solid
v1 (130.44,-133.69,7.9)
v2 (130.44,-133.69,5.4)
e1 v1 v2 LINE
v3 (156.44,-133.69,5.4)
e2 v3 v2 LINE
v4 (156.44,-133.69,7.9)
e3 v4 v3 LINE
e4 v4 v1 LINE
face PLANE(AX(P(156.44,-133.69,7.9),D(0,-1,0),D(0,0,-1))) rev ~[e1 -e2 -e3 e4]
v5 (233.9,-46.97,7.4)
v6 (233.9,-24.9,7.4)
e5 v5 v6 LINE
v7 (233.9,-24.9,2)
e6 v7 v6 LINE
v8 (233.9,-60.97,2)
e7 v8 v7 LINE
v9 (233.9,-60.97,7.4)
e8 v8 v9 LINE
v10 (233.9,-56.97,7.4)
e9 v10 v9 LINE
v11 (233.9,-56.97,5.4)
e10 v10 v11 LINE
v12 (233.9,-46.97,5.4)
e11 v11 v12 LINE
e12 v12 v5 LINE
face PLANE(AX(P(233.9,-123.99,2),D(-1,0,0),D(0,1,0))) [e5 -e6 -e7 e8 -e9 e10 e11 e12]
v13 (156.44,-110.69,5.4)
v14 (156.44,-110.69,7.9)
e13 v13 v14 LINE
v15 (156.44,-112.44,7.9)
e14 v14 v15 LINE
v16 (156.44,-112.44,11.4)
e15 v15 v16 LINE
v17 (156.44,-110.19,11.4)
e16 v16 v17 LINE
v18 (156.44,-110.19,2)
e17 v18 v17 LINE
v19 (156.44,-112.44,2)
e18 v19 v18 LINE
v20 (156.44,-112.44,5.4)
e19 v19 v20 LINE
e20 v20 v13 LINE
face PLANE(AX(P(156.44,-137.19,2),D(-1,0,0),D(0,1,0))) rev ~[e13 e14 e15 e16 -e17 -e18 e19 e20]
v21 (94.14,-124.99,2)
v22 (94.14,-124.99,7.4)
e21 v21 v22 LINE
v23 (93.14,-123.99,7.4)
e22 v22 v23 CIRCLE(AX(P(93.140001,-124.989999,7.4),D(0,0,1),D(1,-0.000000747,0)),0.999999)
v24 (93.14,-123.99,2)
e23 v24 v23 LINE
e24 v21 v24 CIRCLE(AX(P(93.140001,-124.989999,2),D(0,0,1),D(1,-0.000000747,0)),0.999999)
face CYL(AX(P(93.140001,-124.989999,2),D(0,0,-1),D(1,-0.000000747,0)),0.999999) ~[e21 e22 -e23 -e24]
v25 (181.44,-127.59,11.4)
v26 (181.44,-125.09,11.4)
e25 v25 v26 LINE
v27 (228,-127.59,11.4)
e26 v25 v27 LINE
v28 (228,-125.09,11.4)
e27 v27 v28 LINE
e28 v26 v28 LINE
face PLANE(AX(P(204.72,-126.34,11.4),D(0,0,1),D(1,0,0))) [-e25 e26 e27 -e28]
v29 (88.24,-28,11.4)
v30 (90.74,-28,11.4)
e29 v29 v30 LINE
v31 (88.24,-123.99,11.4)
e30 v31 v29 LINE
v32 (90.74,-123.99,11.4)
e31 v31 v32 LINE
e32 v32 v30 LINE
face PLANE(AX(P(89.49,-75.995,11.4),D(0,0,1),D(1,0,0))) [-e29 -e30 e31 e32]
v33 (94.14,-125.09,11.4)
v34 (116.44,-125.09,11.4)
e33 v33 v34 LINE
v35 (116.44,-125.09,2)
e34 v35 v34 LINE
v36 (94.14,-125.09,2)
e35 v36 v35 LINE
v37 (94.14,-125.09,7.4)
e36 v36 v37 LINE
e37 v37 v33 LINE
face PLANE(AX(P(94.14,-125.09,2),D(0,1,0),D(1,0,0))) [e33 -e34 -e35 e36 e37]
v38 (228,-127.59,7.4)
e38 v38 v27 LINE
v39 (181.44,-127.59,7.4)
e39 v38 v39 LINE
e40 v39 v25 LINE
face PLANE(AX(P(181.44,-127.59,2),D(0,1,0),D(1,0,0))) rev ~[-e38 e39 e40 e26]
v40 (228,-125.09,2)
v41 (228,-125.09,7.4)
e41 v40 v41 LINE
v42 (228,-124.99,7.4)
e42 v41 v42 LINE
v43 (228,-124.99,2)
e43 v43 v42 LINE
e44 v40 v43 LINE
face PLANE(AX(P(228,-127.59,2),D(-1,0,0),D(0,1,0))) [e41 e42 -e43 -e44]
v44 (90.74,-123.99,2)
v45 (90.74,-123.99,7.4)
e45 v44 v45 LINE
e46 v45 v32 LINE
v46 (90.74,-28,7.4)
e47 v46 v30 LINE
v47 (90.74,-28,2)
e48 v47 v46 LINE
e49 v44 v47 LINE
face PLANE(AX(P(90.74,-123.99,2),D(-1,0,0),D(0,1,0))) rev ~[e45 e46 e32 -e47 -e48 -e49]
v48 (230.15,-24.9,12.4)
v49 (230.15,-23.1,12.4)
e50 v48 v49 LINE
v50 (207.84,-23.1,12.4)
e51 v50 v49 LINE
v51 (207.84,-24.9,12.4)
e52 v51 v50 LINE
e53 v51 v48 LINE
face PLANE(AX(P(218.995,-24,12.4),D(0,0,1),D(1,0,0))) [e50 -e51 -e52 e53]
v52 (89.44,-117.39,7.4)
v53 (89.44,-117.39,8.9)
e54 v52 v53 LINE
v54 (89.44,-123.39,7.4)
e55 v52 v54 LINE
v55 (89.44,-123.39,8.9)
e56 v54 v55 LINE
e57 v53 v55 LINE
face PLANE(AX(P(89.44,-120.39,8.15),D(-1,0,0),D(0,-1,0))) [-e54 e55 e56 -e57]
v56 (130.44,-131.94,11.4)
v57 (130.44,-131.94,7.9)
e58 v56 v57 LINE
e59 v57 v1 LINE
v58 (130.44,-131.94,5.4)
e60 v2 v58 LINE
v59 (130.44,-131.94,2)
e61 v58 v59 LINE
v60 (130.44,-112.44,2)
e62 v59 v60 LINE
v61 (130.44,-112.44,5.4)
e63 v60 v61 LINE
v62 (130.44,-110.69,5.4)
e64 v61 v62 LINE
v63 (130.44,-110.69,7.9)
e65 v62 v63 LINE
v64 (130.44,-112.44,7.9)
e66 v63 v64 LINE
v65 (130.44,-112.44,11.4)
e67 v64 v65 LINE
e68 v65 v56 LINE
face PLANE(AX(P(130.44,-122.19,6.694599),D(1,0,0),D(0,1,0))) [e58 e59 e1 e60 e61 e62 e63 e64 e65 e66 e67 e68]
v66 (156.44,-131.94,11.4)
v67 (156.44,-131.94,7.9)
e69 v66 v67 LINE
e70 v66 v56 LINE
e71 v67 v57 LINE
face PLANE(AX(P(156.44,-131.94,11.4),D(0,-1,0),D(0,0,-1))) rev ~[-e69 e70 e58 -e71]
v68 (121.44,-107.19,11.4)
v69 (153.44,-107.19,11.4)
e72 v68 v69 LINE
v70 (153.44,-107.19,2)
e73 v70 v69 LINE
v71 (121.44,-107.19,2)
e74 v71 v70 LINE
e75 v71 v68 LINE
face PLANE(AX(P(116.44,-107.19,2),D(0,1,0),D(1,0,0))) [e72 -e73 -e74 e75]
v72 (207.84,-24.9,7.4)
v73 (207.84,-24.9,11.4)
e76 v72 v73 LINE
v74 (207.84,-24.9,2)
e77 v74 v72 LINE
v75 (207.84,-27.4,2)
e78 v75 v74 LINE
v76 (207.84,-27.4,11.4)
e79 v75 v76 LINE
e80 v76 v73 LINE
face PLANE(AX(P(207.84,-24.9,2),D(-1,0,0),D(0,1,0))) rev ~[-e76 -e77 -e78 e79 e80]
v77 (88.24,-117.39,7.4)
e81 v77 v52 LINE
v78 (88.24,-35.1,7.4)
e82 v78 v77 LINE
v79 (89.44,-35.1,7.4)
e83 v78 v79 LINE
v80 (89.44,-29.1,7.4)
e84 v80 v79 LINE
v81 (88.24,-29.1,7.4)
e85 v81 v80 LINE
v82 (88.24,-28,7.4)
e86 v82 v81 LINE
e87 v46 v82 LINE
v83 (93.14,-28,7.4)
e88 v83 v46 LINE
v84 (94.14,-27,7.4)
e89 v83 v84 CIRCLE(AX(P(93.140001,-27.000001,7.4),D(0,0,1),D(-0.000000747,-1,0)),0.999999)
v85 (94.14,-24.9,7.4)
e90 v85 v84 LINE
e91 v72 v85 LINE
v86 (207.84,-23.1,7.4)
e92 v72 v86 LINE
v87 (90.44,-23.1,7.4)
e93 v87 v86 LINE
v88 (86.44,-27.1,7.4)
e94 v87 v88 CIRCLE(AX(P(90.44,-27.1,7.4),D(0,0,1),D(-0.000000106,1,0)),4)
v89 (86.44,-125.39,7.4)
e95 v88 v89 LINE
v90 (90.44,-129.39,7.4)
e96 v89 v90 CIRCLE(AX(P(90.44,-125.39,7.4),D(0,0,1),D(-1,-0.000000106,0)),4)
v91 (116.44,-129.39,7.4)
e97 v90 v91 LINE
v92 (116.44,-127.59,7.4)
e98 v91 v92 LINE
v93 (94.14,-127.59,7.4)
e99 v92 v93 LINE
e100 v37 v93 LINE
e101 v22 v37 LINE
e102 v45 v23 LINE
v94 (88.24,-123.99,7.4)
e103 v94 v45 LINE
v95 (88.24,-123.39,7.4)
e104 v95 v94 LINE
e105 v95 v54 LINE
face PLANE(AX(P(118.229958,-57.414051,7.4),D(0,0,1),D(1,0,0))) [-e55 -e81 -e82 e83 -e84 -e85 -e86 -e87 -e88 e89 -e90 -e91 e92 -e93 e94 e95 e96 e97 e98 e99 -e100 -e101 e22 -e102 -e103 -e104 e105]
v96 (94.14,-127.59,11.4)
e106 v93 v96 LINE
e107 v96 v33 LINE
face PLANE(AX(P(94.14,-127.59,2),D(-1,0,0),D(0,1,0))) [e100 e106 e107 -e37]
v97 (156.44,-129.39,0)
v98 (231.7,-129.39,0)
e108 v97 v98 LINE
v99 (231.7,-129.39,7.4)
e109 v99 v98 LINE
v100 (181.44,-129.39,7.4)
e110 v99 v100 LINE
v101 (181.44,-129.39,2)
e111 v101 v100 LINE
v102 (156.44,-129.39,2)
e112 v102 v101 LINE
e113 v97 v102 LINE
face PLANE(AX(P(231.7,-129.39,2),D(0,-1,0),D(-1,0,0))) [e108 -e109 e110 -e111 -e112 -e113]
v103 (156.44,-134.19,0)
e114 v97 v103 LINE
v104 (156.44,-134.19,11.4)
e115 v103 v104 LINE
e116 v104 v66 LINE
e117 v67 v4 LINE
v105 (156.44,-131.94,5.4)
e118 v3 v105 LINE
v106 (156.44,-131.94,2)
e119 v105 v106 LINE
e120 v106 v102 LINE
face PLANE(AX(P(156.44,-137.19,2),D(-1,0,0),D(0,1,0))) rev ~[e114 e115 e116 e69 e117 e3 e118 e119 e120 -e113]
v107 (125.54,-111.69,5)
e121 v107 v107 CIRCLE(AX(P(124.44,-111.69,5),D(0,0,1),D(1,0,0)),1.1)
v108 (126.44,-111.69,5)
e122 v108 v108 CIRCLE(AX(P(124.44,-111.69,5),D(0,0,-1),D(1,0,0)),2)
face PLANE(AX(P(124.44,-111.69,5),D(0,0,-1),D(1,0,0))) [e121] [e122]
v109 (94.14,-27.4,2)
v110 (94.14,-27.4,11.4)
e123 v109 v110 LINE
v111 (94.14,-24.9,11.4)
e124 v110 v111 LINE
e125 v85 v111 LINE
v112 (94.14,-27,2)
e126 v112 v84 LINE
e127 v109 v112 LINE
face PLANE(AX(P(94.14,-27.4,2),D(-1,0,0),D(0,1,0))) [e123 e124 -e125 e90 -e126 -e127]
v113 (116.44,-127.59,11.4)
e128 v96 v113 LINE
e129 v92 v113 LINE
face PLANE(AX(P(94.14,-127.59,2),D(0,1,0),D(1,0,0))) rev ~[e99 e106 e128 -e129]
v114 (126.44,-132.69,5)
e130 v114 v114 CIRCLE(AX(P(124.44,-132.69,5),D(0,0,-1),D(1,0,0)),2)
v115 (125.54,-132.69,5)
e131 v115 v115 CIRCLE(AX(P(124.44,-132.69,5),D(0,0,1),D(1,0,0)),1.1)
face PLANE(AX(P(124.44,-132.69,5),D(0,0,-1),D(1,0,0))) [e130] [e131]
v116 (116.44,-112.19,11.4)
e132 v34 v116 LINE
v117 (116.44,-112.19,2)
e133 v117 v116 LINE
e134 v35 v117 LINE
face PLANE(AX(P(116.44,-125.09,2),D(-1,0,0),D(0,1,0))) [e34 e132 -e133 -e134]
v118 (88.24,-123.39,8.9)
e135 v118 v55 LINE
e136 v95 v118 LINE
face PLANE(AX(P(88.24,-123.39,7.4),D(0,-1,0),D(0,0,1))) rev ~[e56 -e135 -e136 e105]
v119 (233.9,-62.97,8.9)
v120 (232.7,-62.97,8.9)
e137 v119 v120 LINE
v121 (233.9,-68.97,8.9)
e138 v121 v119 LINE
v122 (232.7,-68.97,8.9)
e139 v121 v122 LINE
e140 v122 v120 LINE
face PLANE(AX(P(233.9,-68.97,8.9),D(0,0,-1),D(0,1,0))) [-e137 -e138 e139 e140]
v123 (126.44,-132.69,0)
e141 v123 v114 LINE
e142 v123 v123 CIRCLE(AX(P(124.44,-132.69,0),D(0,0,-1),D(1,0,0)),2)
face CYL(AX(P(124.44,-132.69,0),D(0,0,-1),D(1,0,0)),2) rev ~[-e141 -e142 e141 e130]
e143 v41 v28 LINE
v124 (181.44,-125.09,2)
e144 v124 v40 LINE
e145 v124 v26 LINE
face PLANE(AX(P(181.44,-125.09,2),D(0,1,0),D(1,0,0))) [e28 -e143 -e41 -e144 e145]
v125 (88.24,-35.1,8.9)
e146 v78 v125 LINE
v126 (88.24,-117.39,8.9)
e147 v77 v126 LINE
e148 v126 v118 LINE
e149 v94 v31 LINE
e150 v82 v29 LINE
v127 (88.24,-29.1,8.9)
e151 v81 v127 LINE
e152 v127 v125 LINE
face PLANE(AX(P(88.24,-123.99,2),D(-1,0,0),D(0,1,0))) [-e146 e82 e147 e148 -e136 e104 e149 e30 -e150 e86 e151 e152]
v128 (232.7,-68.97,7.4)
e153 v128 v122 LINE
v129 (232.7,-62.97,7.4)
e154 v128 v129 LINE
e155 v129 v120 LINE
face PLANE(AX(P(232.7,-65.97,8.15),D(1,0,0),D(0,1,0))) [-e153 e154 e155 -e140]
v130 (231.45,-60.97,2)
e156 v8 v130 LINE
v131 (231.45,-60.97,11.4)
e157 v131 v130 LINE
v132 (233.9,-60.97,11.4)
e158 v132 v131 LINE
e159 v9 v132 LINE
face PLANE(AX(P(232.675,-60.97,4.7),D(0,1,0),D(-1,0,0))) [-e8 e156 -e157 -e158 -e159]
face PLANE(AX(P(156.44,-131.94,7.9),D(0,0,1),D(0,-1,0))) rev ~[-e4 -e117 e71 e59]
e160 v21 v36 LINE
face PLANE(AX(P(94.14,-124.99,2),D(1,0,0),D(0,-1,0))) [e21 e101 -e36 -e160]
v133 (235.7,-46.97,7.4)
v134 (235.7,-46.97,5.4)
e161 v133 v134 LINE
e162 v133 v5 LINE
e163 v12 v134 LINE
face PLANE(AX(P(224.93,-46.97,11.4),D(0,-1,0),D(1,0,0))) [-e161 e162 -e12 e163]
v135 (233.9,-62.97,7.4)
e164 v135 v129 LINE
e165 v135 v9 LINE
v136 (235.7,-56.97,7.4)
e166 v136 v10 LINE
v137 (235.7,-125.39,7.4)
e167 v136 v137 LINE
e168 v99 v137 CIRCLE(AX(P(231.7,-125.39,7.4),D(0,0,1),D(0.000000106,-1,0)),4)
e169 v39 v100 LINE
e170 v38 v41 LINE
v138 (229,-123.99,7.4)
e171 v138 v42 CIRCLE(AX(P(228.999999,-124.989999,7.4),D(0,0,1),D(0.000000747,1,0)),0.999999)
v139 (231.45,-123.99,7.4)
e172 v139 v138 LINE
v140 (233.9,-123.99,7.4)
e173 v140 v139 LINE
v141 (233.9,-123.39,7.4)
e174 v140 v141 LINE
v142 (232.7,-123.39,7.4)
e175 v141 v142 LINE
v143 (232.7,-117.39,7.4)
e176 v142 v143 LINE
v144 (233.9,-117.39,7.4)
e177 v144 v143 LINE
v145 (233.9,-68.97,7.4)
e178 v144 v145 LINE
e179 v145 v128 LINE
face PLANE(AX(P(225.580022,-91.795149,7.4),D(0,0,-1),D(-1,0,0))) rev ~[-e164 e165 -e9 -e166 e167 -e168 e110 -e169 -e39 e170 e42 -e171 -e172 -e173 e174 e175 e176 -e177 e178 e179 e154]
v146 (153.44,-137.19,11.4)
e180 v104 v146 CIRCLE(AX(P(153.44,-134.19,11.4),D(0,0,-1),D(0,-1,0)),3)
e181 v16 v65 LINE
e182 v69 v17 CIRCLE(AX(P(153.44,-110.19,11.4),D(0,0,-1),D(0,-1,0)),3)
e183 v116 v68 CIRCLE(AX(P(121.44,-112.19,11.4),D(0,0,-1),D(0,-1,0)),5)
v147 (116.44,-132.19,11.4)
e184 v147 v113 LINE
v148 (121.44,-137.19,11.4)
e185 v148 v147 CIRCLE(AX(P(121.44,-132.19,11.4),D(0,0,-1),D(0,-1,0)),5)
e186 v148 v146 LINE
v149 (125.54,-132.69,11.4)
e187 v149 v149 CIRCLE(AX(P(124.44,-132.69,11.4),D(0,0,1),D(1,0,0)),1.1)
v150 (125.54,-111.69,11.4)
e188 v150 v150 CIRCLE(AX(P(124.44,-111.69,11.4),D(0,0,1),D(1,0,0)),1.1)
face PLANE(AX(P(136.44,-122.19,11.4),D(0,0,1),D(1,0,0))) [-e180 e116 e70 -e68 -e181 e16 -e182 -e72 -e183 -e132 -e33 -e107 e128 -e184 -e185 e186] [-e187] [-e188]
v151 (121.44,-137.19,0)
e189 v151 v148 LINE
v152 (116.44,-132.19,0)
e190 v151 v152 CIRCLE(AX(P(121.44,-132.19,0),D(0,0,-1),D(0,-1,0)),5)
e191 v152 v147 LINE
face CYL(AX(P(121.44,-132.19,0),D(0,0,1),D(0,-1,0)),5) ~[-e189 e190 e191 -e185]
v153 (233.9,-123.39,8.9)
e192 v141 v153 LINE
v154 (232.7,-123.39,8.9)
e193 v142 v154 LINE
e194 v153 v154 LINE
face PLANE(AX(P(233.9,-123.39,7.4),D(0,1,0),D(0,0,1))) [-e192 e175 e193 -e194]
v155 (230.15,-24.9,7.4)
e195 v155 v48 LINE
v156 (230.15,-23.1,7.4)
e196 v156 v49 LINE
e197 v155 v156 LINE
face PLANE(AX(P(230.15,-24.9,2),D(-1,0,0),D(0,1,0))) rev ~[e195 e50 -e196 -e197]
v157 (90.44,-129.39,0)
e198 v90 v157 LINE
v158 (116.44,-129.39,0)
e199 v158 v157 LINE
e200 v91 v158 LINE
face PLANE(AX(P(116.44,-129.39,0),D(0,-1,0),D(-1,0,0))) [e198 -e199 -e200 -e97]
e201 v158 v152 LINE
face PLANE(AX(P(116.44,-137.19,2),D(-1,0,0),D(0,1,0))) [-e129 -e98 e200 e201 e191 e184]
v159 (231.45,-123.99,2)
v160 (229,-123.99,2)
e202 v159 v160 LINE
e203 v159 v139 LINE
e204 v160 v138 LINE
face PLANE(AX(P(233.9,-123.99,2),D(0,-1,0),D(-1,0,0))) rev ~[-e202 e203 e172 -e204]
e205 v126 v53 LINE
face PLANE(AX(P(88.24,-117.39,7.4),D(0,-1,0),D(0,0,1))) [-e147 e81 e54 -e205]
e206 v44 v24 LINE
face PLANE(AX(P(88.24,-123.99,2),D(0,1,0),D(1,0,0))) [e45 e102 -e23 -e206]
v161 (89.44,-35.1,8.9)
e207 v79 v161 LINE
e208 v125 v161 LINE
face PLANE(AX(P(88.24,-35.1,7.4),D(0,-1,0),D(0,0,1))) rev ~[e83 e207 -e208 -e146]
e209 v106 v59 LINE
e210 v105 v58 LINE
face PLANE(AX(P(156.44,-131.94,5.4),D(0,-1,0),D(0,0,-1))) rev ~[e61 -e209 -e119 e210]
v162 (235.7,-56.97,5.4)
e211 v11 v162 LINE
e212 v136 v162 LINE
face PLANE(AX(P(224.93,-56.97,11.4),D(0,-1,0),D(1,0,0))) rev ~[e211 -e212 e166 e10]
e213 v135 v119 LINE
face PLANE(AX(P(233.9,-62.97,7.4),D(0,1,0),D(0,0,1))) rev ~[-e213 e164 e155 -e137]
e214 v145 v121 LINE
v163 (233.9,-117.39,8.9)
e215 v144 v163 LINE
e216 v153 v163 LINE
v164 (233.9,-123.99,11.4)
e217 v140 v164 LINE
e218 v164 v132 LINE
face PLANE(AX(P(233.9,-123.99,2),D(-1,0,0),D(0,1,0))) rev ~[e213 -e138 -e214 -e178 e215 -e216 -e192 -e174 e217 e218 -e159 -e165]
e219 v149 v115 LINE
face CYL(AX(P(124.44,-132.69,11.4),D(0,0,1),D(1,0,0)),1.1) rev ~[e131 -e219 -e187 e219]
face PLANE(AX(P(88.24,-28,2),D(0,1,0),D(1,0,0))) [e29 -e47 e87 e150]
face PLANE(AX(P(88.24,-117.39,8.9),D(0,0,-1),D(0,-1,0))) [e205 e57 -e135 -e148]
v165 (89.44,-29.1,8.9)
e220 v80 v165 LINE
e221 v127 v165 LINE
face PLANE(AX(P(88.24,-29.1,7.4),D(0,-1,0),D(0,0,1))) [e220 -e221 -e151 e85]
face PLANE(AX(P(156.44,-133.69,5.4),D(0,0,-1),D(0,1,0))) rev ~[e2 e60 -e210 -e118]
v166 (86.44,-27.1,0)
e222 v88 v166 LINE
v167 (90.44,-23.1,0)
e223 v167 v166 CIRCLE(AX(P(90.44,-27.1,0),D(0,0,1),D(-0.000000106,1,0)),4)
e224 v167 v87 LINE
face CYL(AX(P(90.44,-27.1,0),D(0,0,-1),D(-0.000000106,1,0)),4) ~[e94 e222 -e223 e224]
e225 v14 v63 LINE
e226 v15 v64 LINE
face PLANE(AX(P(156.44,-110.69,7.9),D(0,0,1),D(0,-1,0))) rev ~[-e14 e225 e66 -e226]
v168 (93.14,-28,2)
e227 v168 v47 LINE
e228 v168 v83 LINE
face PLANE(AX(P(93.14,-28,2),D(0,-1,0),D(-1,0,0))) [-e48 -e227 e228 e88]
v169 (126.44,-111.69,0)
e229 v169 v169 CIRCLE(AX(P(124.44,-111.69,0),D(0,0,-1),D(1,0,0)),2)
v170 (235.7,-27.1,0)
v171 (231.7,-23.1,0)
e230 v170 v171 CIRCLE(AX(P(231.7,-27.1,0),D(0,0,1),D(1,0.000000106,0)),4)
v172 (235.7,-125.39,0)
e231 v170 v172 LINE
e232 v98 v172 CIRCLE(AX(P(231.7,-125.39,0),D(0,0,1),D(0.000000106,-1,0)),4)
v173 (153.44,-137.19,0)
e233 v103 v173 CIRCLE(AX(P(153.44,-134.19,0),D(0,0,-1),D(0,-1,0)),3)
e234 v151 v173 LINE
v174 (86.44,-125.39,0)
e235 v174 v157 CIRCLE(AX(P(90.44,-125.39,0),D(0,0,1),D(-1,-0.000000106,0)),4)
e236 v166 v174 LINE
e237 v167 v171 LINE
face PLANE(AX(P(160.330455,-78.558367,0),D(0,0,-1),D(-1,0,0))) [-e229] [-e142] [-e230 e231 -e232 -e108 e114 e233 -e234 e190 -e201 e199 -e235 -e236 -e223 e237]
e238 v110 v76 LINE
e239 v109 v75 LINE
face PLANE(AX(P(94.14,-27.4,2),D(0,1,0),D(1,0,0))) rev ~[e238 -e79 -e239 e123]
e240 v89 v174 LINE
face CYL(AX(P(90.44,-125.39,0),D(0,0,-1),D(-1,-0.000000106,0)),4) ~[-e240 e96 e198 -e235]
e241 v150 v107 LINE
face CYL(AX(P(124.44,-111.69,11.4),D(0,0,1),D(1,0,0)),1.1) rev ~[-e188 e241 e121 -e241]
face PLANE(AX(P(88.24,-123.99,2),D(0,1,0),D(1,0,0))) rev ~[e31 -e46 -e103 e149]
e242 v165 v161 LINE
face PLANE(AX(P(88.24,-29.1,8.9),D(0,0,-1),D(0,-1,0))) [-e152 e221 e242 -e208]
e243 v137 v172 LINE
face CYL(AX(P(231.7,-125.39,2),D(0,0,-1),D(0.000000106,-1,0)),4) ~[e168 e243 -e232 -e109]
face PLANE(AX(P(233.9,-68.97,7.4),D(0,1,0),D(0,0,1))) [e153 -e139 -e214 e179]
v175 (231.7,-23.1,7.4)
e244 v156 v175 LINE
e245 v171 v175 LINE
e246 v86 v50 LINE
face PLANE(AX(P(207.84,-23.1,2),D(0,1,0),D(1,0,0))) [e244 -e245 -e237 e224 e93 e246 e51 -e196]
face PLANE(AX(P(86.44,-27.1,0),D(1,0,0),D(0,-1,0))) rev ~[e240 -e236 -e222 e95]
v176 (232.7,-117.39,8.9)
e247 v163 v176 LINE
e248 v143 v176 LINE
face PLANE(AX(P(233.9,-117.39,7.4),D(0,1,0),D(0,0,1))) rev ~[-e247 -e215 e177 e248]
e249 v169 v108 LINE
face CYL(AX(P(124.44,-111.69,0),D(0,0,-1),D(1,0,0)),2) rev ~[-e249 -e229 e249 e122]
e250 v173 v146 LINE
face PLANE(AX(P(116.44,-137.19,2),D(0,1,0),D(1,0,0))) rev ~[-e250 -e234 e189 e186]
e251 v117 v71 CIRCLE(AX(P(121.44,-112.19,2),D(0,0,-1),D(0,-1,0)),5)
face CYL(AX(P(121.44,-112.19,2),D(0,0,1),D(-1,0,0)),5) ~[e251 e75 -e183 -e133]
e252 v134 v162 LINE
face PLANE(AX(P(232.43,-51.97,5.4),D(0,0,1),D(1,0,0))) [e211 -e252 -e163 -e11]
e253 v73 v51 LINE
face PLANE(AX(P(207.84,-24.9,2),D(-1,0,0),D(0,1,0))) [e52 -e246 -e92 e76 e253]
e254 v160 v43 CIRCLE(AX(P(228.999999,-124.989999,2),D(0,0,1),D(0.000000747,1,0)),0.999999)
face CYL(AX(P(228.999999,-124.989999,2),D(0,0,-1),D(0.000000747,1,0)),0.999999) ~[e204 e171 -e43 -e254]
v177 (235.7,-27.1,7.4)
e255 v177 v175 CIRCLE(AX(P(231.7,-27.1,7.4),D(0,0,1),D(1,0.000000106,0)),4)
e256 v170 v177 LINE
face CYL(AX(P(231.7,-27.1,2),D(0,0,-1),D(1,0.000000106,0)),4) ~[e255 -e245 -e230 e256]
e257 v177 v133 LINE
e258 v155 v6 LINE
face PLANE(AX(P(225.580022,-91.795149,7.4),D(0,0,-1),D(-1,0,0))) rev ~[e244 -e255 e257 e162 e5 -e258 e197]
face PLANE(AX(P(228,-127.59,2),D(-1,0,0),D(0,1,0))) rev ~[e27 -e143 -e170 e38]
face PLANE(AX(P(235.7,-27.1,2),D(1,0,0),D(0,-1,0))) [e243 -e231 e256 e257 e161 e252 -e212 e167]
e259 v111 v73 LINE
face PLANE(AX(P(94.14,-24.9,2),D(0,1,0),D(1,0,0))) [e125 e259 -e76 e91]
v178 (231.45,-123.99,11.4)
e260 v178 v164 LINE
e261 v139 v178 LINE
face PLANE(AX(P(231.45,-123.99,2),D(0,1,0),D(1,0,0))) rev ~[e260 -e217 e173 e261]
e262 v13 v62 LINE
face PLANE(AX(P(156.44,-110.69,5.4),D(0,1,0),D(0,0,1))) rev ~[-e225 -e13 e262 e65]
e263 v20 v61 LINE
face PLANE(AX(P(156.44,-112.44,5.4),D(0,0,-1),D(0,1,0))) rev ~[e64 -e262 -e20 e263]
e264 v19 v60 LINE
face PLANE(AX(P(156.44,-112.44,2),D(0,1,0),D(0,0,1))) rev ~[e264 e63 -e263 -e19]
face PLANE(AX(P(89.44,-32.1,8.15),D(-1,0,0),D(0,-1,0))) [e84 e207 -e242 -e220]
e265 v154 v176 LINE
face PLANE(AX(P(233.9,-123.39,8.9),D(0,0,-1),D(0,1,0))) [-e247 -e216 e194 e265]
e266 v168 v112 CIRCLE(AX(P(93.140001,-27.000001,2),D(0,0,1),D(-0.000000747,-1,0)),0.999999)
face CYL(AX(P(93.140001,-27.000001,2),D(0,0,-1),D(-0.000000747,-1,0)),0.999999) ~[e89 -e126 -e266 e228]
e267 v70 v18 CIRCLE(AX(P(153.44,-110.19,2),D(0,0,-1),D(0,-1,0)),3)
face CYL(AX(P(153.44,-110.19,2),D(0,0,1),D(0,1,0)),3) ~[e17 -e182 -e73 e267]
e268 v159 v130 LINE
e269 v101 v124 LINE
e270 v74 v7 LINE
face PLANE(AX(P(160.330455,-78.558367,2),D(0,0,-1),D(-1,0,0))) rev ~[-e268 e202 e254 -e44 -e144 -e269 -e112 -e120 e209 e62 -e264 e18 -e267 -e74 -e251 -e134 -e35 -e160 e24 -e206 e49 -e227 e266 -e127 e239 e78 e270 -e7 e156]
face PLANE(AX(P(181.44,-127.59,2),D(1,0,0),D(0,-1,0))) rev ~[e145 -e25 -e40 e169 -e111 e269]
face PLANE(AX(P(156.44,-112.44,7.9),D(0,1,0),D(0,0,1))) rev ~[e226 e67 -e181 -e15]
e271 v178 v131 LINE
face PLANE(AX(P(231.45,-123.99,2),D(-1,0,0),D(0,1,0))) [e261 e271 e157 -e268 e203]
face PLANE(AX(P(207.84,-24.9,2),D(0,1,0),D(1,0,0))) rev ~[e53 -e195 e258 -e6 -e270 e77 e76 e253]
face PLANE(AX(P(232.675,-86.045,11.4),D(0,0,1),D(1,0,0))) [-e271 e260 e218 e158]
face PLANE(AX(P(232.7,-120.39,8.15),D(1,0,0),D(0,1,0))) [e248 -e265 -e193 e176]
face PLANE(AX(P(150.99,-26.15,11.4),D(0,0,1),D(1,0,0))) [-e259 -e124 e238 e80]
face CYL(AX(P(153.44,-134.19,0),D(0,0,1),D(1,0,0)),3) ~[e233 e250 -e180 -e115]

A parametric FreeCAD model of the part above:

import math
import FreeCAD as App
import Part
import Sketcher
from FreeCAD import Vector


def edges_at(feature, points):
    """Names of the edges that pass closest to the given points."""
    edges = feature.Shape.Edges
    near = lambda p: min(range(len(edges)), key=lambda i: edges[i].distToShape(Part.Vertex(*p))[0])
    return sorted({f"Edge{near(p) + 1}" for p in points})


def add_polygon(sketch, points):
    """Adds a closed chain of lines whose ends are joined by coincident constraints."""
    first, n = sketch.GeometryCount, len(points)
    for a, b in zip(points, points[1:] + points[:1]):
        sketch.addGeometry(Part.LineSegment(App.Vector(*a, 0), App.Vector(*b, 0)), False)
    for i in range(n):
        sketch.addConstraint(Sketcher.Constraint("Coincident", first + i, 2, first + (i + 1) % n, 1))

doc = App.newDocument("Part")
body = doc.addObject("PartDesign::Body", "Body")

# Sketch on XY plane
sketch1 = body.newObject("Sketcher::SketchObject", "Sketch")
sketch1.AttachmentSupport = (doc.getObject("XY_Plane"), [""])
sketch1.MapMode = "FlatFace"
sketch1.addGeometry(Part.LineSegment(Vector(235.7, -125.4, 0), Vector(235.7, -27.1, 0)), False)
sketch1.addGeometry(Part.ArcOfCircle(Part.Circle(Vector(231.7, -27.1, 0), Vector(0, 0, 1), 4), math.radians(0), math.radians(90)), False)
sketch1.addGeometry(Part.LineSegment(Vector(231.7, -23.1, 0), Vector(90.4, -23.1, 0)), False)
sketch1.addGeometry(Part.ArcOfCircle(Part.Circle(Vector(90.4, -27.1, 0), Vector(0, 0, 1), 4), math.radians(90), math.radians(180)), False)
sketch1.addGeometry(Part.LineSegment(Vector(86.4, -27.1, 0), Vector(86.4, -125.4, 0)), False)
sketch1.addGeometry(Part.ArcOfCircle(Part.Circle(Vector(90.4, -125.4, 0), Vector(0, 0, 1), 4), math.radians(-180), math.radians(-90)), False)
sketch1.addGeometry(Part.LineSegment(Vector(90.4, -129.4, 0), Vector(116.4, -129.4, 0)), False)
sketch1.addGeometry(Part.LineSegment(Vector(116.4, -129.4, 0), Vector(116.4, -137.2, 0)), False)
sketch1.addGeometry(Part.LineSegment(Vector(116.4, -137.2, 0), Vector(156.4, -137.2, 0)), False)
sketch1.addGeometry(Part.LineSegment(Vector(156.4, -137.2, 0), Vector(156.4, -129.4, 0)), False)
sketch1.addGeometry(Part.LineSegment(Vector(156.4, -129.4, 0), Vector(231.7, -129.4, 0)), False)
sketch1.addGeometry(Part.ArcOfCircle(Part.Circle(Vector(231.7, -125.4, 0), Vector(0, 0, 1), 4), math.radians(-90), math.radians(0)), False)
sketch1.addConstraint(Sketcher.Constraint("Tangent", 0, 2, 1, 1))
sketch1.addConstraint(Sketcher.Constraint("Tangent", 1, 2, 2, 1))
sketch1.addConstraint(Sketcher.Constraint("Tangent", 2, 2, 3, 1))
sketch1.addConstraint(Sketcher.Constraint("Tangent", 3, 2, 4, 1))
sketch1.addConstraint(Sketcher.Constraint("Tangent", 4, 2, 5, 1))
sketch1.addConstraint(Sketcher.Constraint("Tangent", 5, 2, 6, 1))
sketch1.addConstraint(Sketcher.Constraint("Coincident", 6, 2, 7, 1))
sketch1.addConstraint(Sketcher.Constraint("Coincident", 7, 2, 8, 1))
sketch1.addConstraint(Sketcher.Constraint("Coincident", 8, 2, 9, 1))
sketch1.addConstraint(Sketcher.Constraint("Coincident", 9, 2, 10, 1))
sketch1.addConstraint(Sketcher.Constraint("Tangent", 10, 2, 11, 1))
sketch1.addConstraint(Sketcher.Constraint("Tangent", 11, 2, 0, 1))
sketch1.addConstraint(Sketcher.Constraint("Vertical", 0))
sketch1.addConstraint(Sketcher.Constraint("Horizontal", 2))
sketch1.addConstraint(Sketcher.Constraint("Vertical", 4))
sketch1.addConstraint(Sketcher.Constraint("Horizontal", 6))
sketch1.addConstraint(Sketcher.Constraint("Vertical", 7))
sketch1.addConstraint(Sketcher.Constraint("Horizontal", 8))
sketch1.addConstraint(Sketcher.Constraint("Vertical", 9))
sketch1.addConstraint(Sketcher.Constraint("Horizontal", 10))
sketch1.addConstraint(Sketcher.Constraint("Equal", 1, 3))
sketch1.addConstraint(Sketcher.Constraint("Equal", 3, 5))
sketch1.addConstraint(Sketcher.Constraint("Equal", 5, 11))
sketch1.addConstraint(Sketcher.Constraint("Horizontal", 5, 3, 11, 3))
sketch1.addConstraint(Sketcher.Constraint("Radius", 1, 4.0))
sketch1.addConstraint(Sketcher.Constraint("DistanceX", 6, 1, 6, 2, 26.0))
sketch1.addConstraint(Sketcher.Constraint("DistanceX", 8, 1, 8, 2, 40.0))
sketch1.addConstraint(Sketcher.Constraint("DistanceY", 7, 2, 7, 1, 7.8))
sketch1.addConstraint(Sketcher.Constraint("DistanceX", 2, 2, 2, 1, 141.26))
sketch1.addConstraint(Sketcher.Constraint("DistanceY", 0, 1, 0, 2, 98.29))
sketch1.addConstraint(Sketcher.Constraint("DistanceX", -1, 1, 1, 3, 231.7))
sketch1.addConstraint(Sketcher.Constraint("DistanceY", 1, 3, -1, 1, 27.1))
pad1 = body.newObject("PartDesign::Pad", "Pad")
pad1.Profile = sketch1
pad1.Length = 2

# Sketch on XY plane
sketch2 = body.newObject("Sketcher::SketchObject", "Sketch001")
sketch2.AttachmentSupport = (doc.getObject("XY_Plane"), [""])
sketch2.MapMode = "FlatFace"
sketch2.AttachmentOffset = App.Placement(Vector(0, 0, 2), App.Rotation())
sketch2.addGeometry(Part.LineSegment(Vector(235.7, -125.4, 0), Vector(235.7, -27.1, 0)), False)
sketch2.addGeometry(Part.ArcOfCircle(Part.Circle(Vector(231.7, -27.1, 0), Vector(0, 0, 1), 4), math.radians(0), math.radians(90)), False)
sketch2.addGeometry(Part.LineSegment(Vector(231.7, -23.1, 0), Vector(230.2, -23.1, 0)), False)
sketch2.addGeometry(Part.LineSegment(Vector(230.2, -23.1, 0), Vector(230.2, -24.9, 0)), False)
sketch2.addGeometry(Part.LineSegment(Vector(230.2, -24.9, 0), Vector(233.9, -24.9, 0)), False)
sketch2.addGeometry(Part.LineSegment(Vector(233.9, -24.9, 0), Vector(233.9, -124, 0)), False)
sketch2.addGeometry(Part.LineSegment(Vector(233.9, -124, 0), Vector(229, -124, 0)), False)
sketch2.addGeometry(Part.ArcOfCircle(Part.Circle(Vector(229, -125, 0), Vector(0, 0, 1), 1), math.radians(90), math.radians(180)), False)
sketch2.addGeometry(Part.LineSegment(Vector(228, -125, 0), Vector(228, -127.6, 0)), False)
sketch2.addGeometry(Part.LineSegment(Vector(228, -127.6, 0), Vector(181.4, -127.6, 0)), False)
sketch2.addGeometry(Part.LineSegment(Vector(181.4, -127.6, 0), Vector(181.4, -129.4, 0)), False)
sketch2.addGeometry(Part.LineSegment(Vector(181.4, -129.4, 0), Vector(231.7, -129.4, 0)), False)
sketch2.addGeometry(Part.ArcOfCircle(Part.Circle(Vector(231.7, -125.4, 0), Vector(0, 0, 1), 4), math.radians(-90), math.radians(0)), False)
sketch2.addGeometry(Part.LineSegment(Vector(86.4, -27.1, 0), Vector(86.4, -125.4, 0)), False)
sketch2.addGeometry(Part.ArcOfCircle(Part.Circle(Vector(90.4, -125.4, 0), Vector(0, 0, 1), 4), math.radians(-180), math.radians(-90)), False)
sketch2.addGeometry(Part.LineSegment(Vector(90.4, -129.4, 0), Vector(116.4, -129.4, 0)), False)
sketch2.addGeometry(Part.LineSegment(Vector(116.4, -129.4, 0), Vector(116.4, -127.6, 0)), False)
sketch2.addGeometry(Part.LineSegment(Vector(116.4, -127.6, 0), Vector(94.1, -127.6, 0)), False)
sketch2.addGeometry(Part.LineSegment(Vector(94.1, -127.6, 0), Vector(94.1, -125, 0)), False)
sketch2.addGeometry(Part.ArcOfCircle(Part.Circle(Vector(93.1, -125, 0), Vector(0, 0, 1), 1), math.radians(0), math.radians(90)), False)
sketch2.addGeometry(Part.LineSegment(Vector(93.1, -124, 0), Vector(88.2, -124, 0)), False)
sketch2.addGeometry(Part.LineSegment(Vector(88.2, -124, 0), Vector(88.2, -28, 0)), False)
sketch2.addGeometry(Part.LineSegment(Vector(88.2, -28, 0), Vector(93.1, -28, 0)), False)
sketch2.addGeometry(Part.ArcOfCircle(Part.Circle(Vector(93.1, -27, 0), Vector(0, 0, 1), 1), math.radians(-90), math.radians(0)), False)
sketch2.addGeometry(Part.LineSegment(Vector(94.1, -27, 0), Vector(94.1, -24.9, 0)), False)
sketch2.addGeometry(Part.LineSegment(Vector(94.1, -24.9, 0), Vector(207.8, -24.9, 0)), False)
sketch2.addGeometry(Part.LineSegment(Vector(207.8, -24.9, 0), Vector(207.8, -23.1, 0)), False)
sketch2.addGeometry(Part.LineSegment(Vector(207.8, -23.1, 0), Vector(90.4, -23.1, 0)), False)
sketch2.addGeometry(Part.ArcOfCircle(Part.Circle(Vector(90.4, -27.1, 0), Vector(0, 0, 1), 4), math.radians(90), math.radians(180)), False)
sketch2.addConstraint(Sketcher.Constraint("Tangent", 0, 2, 1, 1))
sketch2.addConstraint(Sketcher.Constraint("Tangent", 1, 2, 2, 1))
sketch2.addConstraint(Sketcher.Constraint("Coincident", 2, 2, 3, 1))
sketch2.addConstraint(Sketcher.Constraint("Coincident", 3, 2, 4, 1))
sketch2.addConstraint(Sketcher.Constraint("Coincident", 4, 2, 5, 1))
sketch2.addConstraint(Sketcher.Constraint("Coincident", 5, 2, 6, 1))
sketch2.addConstraint(Sketcher.Constraint("Tangent", 6, 2, 7, 1))
sketch2.addConstraint(Sketcher.Constraint("Tangent", 7, 2, 8, 1))
sketch2.addConstraint(Sketcher.Constraint("Coincident", 8, 2, 9, 1))
sketch2.addConstraint(Sketcher.Constraint("Coincident", 9, 2, 10, 1))
sketch2.addConstraint(Sketcher.Constraint("Coincident", 10, 2, 11, 1))
sketch2.addConstraint(Sketcher.Constraint("Tangent", 11, 2, 12, 1))
sketch2.addConstraint(Sketcher.Constraint("Tangent", 12, 2, 0, 1))
sketch2.addConstraint(Sketcher.Constraint("Tangent", 13, 2, 14, 1))
sketch2.addConstraint(Sketcher.Constraint("Tangent", 14, 2, 15, 1))
sketch2.addConstraint(Sketcher.Constraint("Coincident", 15, 2, 16, 1))
sketch2.addConstraint(Sketcher.Constraint("Coincident", 16, 2, 17, 1))
sketch2.addConstraint(Sketcher.Constraint("Coincident", 17, 2, 18, 1))
sketch2.addConstraint(Sketcher.Constraint("Tangent", 18, 2, 19, 1))
sketch2.addConstraint(Sketcher.Constraint("Tangent", 19, 2, 20, 1))
sketch2.addConstraint(Sketcher.Constraint("Coincident", 20, 2, 21, 1))
sketch2.addConstraint(Sketcher.Constraint("Coincident", 21, 2, 22, 1))
sketch2.addConstraint(Sketcher.Constraint("Tangent", 22, 2, 23, 1))
sketch2.addConstraint(Sketcher.Constraint("Tangent", 23, 2, 24, 1))
sketch2.addConstraint(Sketcher.Constraint("Coincident", 24, 2, 25, 1))
sketch2.addConstraint(Sketcher.Constraint("Coincident", 25, 2, 26, 1))
sketch2.addConstraint(Sketcher.Constraint("Coincident", 26, 2, 27, 1))
sketch2.addConstraint(Sketcher.Constraint("Tangent", 27, 2, 28, 1))
sketch2.addConstraint(Sketcher.Constraint("Tangent", 28, 2, 13, 1))
sketch2.addConstraint(Sketcher.Constraint("Vertical", 0))
sketch2.addConstraint(Sketcher.Constraint("Horizontal", 2))
sketch2.addConstraint(Sketcher.Constraint("Vertical", 3))
sketch2.addConstraint(Sketcher.Constraint("Horizontal", 4))
sketch2.addConstraint(Sketcher.Constraint("Vertical", 5))
sketch2.addConstraint(Sketcher.Constraint("Horizontal", 6))
sketch2.addConstraint(Sketcher.Constraint("Vertical", 8))
sketch2.addConstraint(Sketcher.Constraint("Horizontal", 9))
sketch2.addConstraint(Sketcher.Constraint("Vertical", 10))
sketch2.addConstraint(Sketcher.Constraint("Horizontal", 11))
sketch2.addConstraint(Sketcher.Constraint("Vertical", 13))
sketch2.addConstraint(Sketcher.Constraint("Horizontal", 15))
sketch2.addConstraint(Sketcher.Constraint("Vertical", 16))
sketch2.addConstraint(Sketcher.Constraint("Horizontal", 17))
sketch2.addConstraint(Sketcher.Constraint("Vertical", 18))
sketch2.addConstraint(Sketcher.Constraint("Horizontal", 20))
sketch2.addConstraint(Sketcher.Constraint("Vertical", 21))
sketch2.addConstraint(Sketcher.Constraint("Horizontal", 22))
sketch2.addConstraint(Sketcher.Constraint("Vertical", 24))
sketch2.addConstraint(Sketcher.Constraint("Horizontal", 25))
sketch2.addConstraint(Sketcher.Constraint("Vertical", 26))
sketch2.addConstraint(Sketcher.Constraint("Horizontal", 27))
sketch2.addConstraint(Sketcher.Constraint("Equal", 1, 12))
sketch2.addConstraint(Sketcher.Constraint("Equal", 12, 14))
sketch2.addConstraint(Sketcher.Constraint("Equal", 7, 19))
sketch2.addConstraint(Sketcher.Constraint("Equal", 19, 23))
sketch2.addConstraint(Sketcher.Constraint("Equal", 14, 28))
sketch2.addConstraint(Sketcher.Constraint("Horizontal", 12, 3, 14, 3))
sketch2.addConstraint(Sketcher.Constraint("Horizontal", 7, 3, 19, 3))
sketch2.addConstraint(Sketcher.Constraint("Horizontal", 1, 3, 28, 3))
sketch2.addConstraint(Sketcher.Constraint("Horizontal", 9, 2, 16, 2))
sketch2.addConstraint(Sketcher.Constraint("Horizontal", 4, 2, 24, 2))
sketch2.addConstraint(Sketcher.Constraint("Vertical", 19, 3, 23, 3))
sketch2.addConstraint(Sketcher.Constraint("Equal", 6, 20))
sketch2.addConstraint(Sketcher.Constraint("Equal", 3, 10))
sketch2.addConstraint(Sketcher.Constraint("Radius", 1, 4.0))
sketch2.addConstraint(Sketcher.Constraint("Radius", 7, 0.999999))
sketch2.addConstraint(Sketcher.Constraint("DistanceX", 15, 1, 15, 2, 26.0))
sketch2.addConstraint(Sketcher.Constraint("DistanceX", 6, 2, 6, 1, 4.9))
sketch2.addConstraint(Sketcher.Constraint("DistanceX", 17, 2, 17, 1, 22.3))
sketch2.addConstraint(Sketcher.Constraint("DistanceX", 25, 1, 25, 2, 113.7))
sketch2.addConstraint(Sketcher.Constraint("DistanceY", 3, 2, 3, 1, 1.8))
sketch2.addConstraint(Sketcher.Constraint("DistanceY", 8, 2, 8, 1, 2.6))
sketch2.addConstraint(Sketcher.Constraint("DistanceY", 24, 1, 24, 2, 2.1))
sketch2.addConstraint(Sketcher.Constraint("DistanceX", -1, 1, 7, 3, 228.999999))
sketch2.addConstraint(Sketcher.Constraint("DistanceY", 23, 3, -1, 1, 27.000001))
sketch2.addConstraint(Sketcher.Constraint("DistanceX", 13, 2, 9, 2, 95.0))
sketch2.addConstraint(Sketcher.Constraint("DistanceX", 2, 2, 2, 1, 1.55))
sketch2.addConstraint(Sketcher.Constraint("DistanceX", 4, 1, 4, 2, 3.75))
sketch2.addConstraint(Sketcher.Constraint("DistanceX", 9, 2, 9, 1, 46.56))
sketch2.addConstraint(Sketcher.Constraint("DistanceY", 0, 1, 0, 2, 98.29))
pad2 = body.newObject("PartDesign::Pad", "Pad001")
pad2.Profile = sketch2
pad2.Length = 5.4

# Sketch on XY plane
sketch3 = body.newObject("Sketcher::SketchObject", "Sketch002")
sketch3.AttachmentSupport = (doc.getObject("XY_Plane"), [""])
sketch3.MapMode = "FlatFace"
sketch3.AttachmentOffset = App.Placement(Vector(0, 0, 2), App.Rotation())
add_polygon(sketch3, [(116.4, -127.6), (116.4, -137.2), (156.4, -137.2), (156.4, -107.2), (116.4, -107.2), (116.4, -125.1), (94.1, -125.1), (94.1, -127.6)])  # lines 0-7
add_polygon(sketch3, [(88.2, -28), (88.2, -124), (90.7, -124), (90.7, -28)])  # lines 8-11
add_polygon(sketch3, [(94.1, -24.9), (94.1, -27.4), (207.8, -27.4), (207.8, -24.9)])  # lines 12-15
add_polygon(sketch3, [(181.4, -125.1), (181.4, -127.6), (228, -127.6), (228, -125.1)])  # lines 16-19
add_polygon(sketch3, [(231.4, -48.1), (231.4, -124), (233.9, -124), (233.9, -48.1)])  # lines 20-23
sketch3.addConstraint(Sketcher.Constraint("Vertical", 0))
sketch3.addConstraint(Sketcher.Constraint("Horizontal", 1))
sketch3.addConstraint(Sketcher.Constraint("Vertical", 2))
sketch3.addConstraint(Sketcher.Constraint("Horizontal", 3))
sketch3.addConstraint(Sketcher.Constraint("Vertical", 4))
sketch3.addConstraint(Sketcher.Constraint("Horizontal", 5))
sketch3.addConstraint(Sketcher.Constraint("Vertical", 6))
sketch3.addConstraint(Sketcher.Constraint("Horizontal", 7))
sketch3.addConstraint(Sketcher.Constraint("Vertical", 8))
sketch3.addConstraint(Sketcher.Constraint("Horizontal", 9))
sketch3.addConstraint(Sketcher.Constraint("Vertical", 10))
sketch3.addConstraint(Sketcher.Constraint("Horizontal", 11))
sketch3.addConstraint(Sketcher.Constraint("Vertical", 12))
sketch3.addConstraint(Sketcher.Constraint("Horizontal", 13))
sketch3.addConstraint(Sketcher.Constraint("Vertical", 14))
sketch3.addConstraint(Sketcher.Constraint("Horizontal", 15))
sketch3.addConstraint(Sketcher.Constraint("Vertical", 16))
sketch3.addConstraint(Sketcher.Constraint("Horizontal", 17))
sketch3.addConstraint(Sketcher.Constraint("Vertical", 18))
sketch3.addConstraint(Sketcher.Constraint("Horizontal", 19))
sketch3.addConstraint(Sketcher.Constraint("Vertical", 20))
sketch3.addConstraint(Sketcher.Constraint("Horizontal", 21))
sketch3.addConstraint(Sketcher.Constraint("Vertical", 22))
sketch3.addConstraint(Sketcher.Constraint("Horizontal", 23))
sketch3.addConstraint(Sketcher.Constraint("Horizontal", 7, 2, 16, 2))
sketch3.addConstraint(Sketcher.Constraint("Horizontal", 5, 2, 18, 2))
sketch3.addConstraint(Sketcher.Constraint("Horizontal", 9, 2, 20, 2))
sketch3.addConstraint(Sketcher.Constraint("Vertical", 0, 2, 3, 2))
sketch3.addConstraint(Sketcher.Constraint("Vertical", 6, 2, 12, 2))
sketch3.addConstraint(Sketcher.Constraint("Equal", 11, 6))
sketch3.addConstraint(Sketcher.Constraint("Equal", 6, 12))
sketch3.addConstraint(Sketcher.Constraint("DistanceX", 1, 1, 1, 2, 40.0))
sketch3.addConstraint(Sketcher.Constraint("DistanceY", 2, 1, 2, 2, 30.0))
sketch3.addConstraint(Sketcher.Constraint("DistanceX", 5, 2, 5, 1, 22.3))
sketch3.addConstraint(Sketcher.Constraint("DistanceX", 9, 1, 9, 2, 2.5))
sketch3.addConstraint(Sketcher.Constraint("DistanceX", 13, 1, 13, 2, 113.7))
sketch3.addConstraint(Sketcher.Constraint("DistanceY", 0, 2, 0, 1, 9.6))
sketch3.addConstraint(Sketcher.Constraint("DistanceY", 10, 2, -1, 1, 28.0))
sketch3.addConstraint(Sketcher.Constraint("DistanceX", -1, 1, 17, 2, 228.0))
sketch3.addConstraint(Sketcher.Constraint("DistanceX", 1, 2, 16, 2, 25.0))
sketch3.addConstraint(Sketcher.Constraint("DistanceX", 17, 1, 17, 2, 46.56))
sketch3.addConstraint(Sketcher.Constraint("DistanceX", 21, 1, 21, 2, 2.45))
sketch3.addConstraint(Sketcher.Constraint("DistanceY", 8, 2, 8, 1, 95.99))
sketch3.addConstraint(Sketcher.Constraint("DistanceY", 20, 2, 20, 1, 75.89))
sketch3.addConstraint(Sketcher.Constraint("DistanceY", 12, 2, -1, 1, 27.4))
sketch3.addConstraint(Sketcher.Constraint("DistanceX", -1, 1, 21, 2, 233.9))
sketch3.addConstraint(Sketcher.Constraint("DistanceX", 8, 2, 5, 2, 5.9))
sketch3.addConstraint(Sketcher.Constraint("DistanceY", 5, 2, 8, 2, 1.1))
pad3 = body.newObject("PartDesign::Pad", "Pad002")
pad3.Profile = sketch3
pad3.Length = 9.4

# Sketch on YZ plane
sketch4 = body.newObject("Sketcher::SketchObject", "Sketch003")
sketch4.AttachmentSupport = (doc.getObject("YZ_Plane"), [""])
sketch4.MapMode = "FlatFace"
sketch4.AttachmentOffset = App.Placement(Vector(0, 0, 156.44), App.Rotation())
add_polygon(sketch4, [(-131.9, 5.4), (-131.9, 2), (-112.4, 2), (-112.4, 5.4), (-110.7, 5.4), (-110.7, 7.9), (-112.4, 7.9), (-112.4, 11.4), (-131.9, 11.4), (-131.9, 7.9), (-133.7, 7.9), (-133.7, 5.4)])  # lines 0-11
sketch4.addConstraint(Sketcher.Constraint("Vertical", 0))
sketch4.addConstraint(Sketcher.Constraint("Horizontal", 1))
sketch4.addConstraint(Sketcher.Constraint("Vertical", 2))
sketch4.addConstraint(Sketcher.Constraint("Horizontal", 3))
sketch4.addConstraint(Sketcher.Constraint("Vertical", 4))
sketch4.addConstraint(Sketcher.Constraint("Horizontal", 5))
sketch4.addConstraint(Sketcher.Constraint("Vertical", 6))
sketch4.addConstraint(Sketcher.Constraint("Horizontal", 7))
sketch4.addConstraint(Sketcher.Constraint("Vertical", 8))
sketch4.addConstraint(Sketcher.Constraint("Horizontal", 9))
sketch4.addConstraint(Sketcher.Constraint("Vertical", 10))
sketch4.addConstraint(Sketcher.Constraint("Horizontal", 11))
sketch4.addConstraint(Sketcher.Constraint("Horizontal", 5, 2, 8, 2))
sketch4.addConstraint(Sketcher.Constraint("Horizontal", 3, 2, 10, 2))
sketch4.addConstraint(Sketcher.Constraint("Vertical", 2, 2, 5, 2))
sketch4.addConstraint(Sketcher.Constraint("Vertical", 0, 2, 7, 2))
sketch4.addConstraint(Sketcher.Constraint("Equal", 5, 9))
sketch4.addConstraint(Sketcher.Constraint("DistanceX", 1, 1, 1, 2, 19.5))
sketch4.addConstraint(Sketcher.Constraint("DistanceY", 0, 2, 0, 1, 3.4))
sketch4.addConstraint(Sketcher.Constraint("DistanceY", 4, 1, 4, 2, 2.5))
sketch4.addConstraint(Sketcher.Constraint("DistanceY", 6, 1, 6, 2, 3.5))
sketch4.addConstraint(Sketcher.Constraint("DistanceY", -1, 1, 0, 2, 2.0))
sketch4.addConstraint(Sketcher.Constraint("DistanceX", 3, 1, 3, 2, 1.75))
sketch4.addConstraint(Sketcher.Constraint("DistanceX", 0, 2, -1, 1, 131.94))
pocket1 = body.newObject("PartDesign::Pocket", "Pocket")
pocket1.Profile = sketch4
pocket1.Length = 26

# Sketch on XY plane
sketch5 = body.newObject("Sketcher::SketchObject", "Sketch004")
sketch5.AttachmentSupport = (doc.getObject("XY_Plane"), [""])
sketch5.MapMode = "FlatFace"
sketch5.AttachmentOffset = App.Placement(Vector(0, 0, 11.4), App.Rotation())
add_polygon(sketch5, [(225, -47), (225, -57), (240, -57), (240, -47)])  # lines 0-3
sketch5.addConstraint(Sketcher.Constraint("Vertical", 0))
sketch5.addConstraint(Sketcher.Constraint("Horizontal", 1))
sketch5.addConstraint(Sketcher.Constraint("Vertical", 2))
sketch5.addConstraint(Sketcher.Constraint("Horizontal", 3))
sketch5.addConstraint(Sketcher.Constraint("DistanceX", 1, 1, 1, 2, 15.0))
sketch5.addConstraint(Sketcher.Constraint("DistanceY", 0, 2, 0, 1, 10.0))
sketch5.addConstraint(Sketcher.Constraint("DistanceX", -1, 1, 0, 2, 224.93))
sketch5.addConstraint(Sketcher.Constraint("DistanceY", 0, 2, -1, 1, 56.97))
pocket2 = body.newObject("PartDesign::Pocket", "Pocket001")
pocket2.Profile = sketch5
pocket2.Length = 6

# Sketch on XY plane
sketch6 = body.newObject("Sketcher::SketchObject", "Sketch005")
sketch6.AttachmentSupport = (doc.getObject("XY_Plane"), [""])
sketch6.MapMode = "FlatFace"
sketch6.AttachmentOffset = App.Placement(Vector(0, 0, 2), App.Rotation())
add_polygon(sketch6, [(207.8, -23.1), (207.8, -24.9), (230.2, -24.9), (230.2, -23.1)])  # lines 0-3
sketch6.addConstraint(Sketcher.Constraint("Vertical", 0))
sketch6.addConstraint(Sketcher.Constraint("Horizontal", 1))
sketch6.addConstraint(Sketcher.Constraint("Vertical", 2))
sketch6.addConstraint(Sketcher.Constraint("Horizontal", 3))
sketch6.addConstraint(Sketcher.Constraint("DistanceY", 0, 2, 0, 1, 1.8))
sketch6.addConstraint(Sketcher.Constraint("DistanceX", 1, 1, 1, 2, 22.31))
sketch6.addConstraint(Sketcher.Constraint("DistanceY", 0, 2, -1, 1, 24.9))
sketch6.addConstraint(Sketcher.Constraint("DistanceX", -1, 1, 0, 2, 207.84))
pad4 = body.newObject("PartDesign::Pad", "Pad003")
pad4.Profile = sketch6
pad4.Length = 10.4
doc.recompute()

fillet = body.newObject("PartDesign::Fillet", "Fillet")
fillet.Base = (pad4, edges_at(pad4, [(116.44, -137.19, 5.7), (116.44, -107.19, 6.7)]))
fillet.Radius = 5
doc.recompute()

fillet2 = body.newObject("PartDesign::Fillet", "Fillet001")
fillet2.Base = (fillet, edges_at(fillet, [(156.44, -137.19, 5.7), (156.44, -107.19, 6.7)]))
fillet2.Radius = 3

# Sketch on YZ plane
sketch7 = body.newObject("Sketcher::SketchObject", "Sketch006")
sketch7.AttachmentSupport = (doc.getObject("YZ_Plane"), [""])
sketch7.MapMode = "FlatFace"
sketch7.AttachmentOffset = App.Placement(Vector(0, 0, 88.24), App.Rotation())
add_polygon(sketch7, [(-29.1, 8.9), (-29.1, 7.4), (-35.1, 7.4), (-35.1, 8.9)])  # lines 0-3
add_polygon(sketch7, [(-117.4, 8.9), (-117.4, 7.4), (-123.4, 7.4), (-123.4, 8.9)])  # lines 4-7
sketch7.addConstraint(Sketcher.Constraint("Vertical", 0))
sketch7.addConstraint(Sketcher.Constraint("Horizontal", 1))
sketch7.addConstraint(Sketcher.Constraint("Vertical", 2))
sketch7.addConstraint(Sketcher.Constraint("Horizontal", 3))
sketch7.addConstraint(Sketcher.Constraint("Vertical", 4))
sketch7.addConstraint(Sketcher.Constraint("Horizontal", 5))
sketch7.addConstraint(Sketcher.Constraint("Vertical", 6))
sketch7.addConstraint(Sketcher.Constraint("Horizontal", 7))
sketch7.addConstraint(Sketcher.Constraint("Horizontal", 1, 2, 4, 2))
sketch7.addConstraint(Sketcher.Constraint("Horizontal", 3, 2, 6, 2))
sketch7.addConstraint(Sketcher.Constraint("Equal", 3, 5))
sketch7.addConstraint(Sketcher.Constraint("DistanceX", 1, 2, 1, 1, 6.0))
sketch7.addConstraint(Sketcher.Constraint("DistanceY", 0, 2, 0, 1, 1.5))
sketch7.addConstraint(Sketcher.Constraint("DistanceX", 0, 2, -1, 1, 29.1))
sketch7.addConstraint(Sketcher.Constraint("DistanceY", -1, 1, 0, 2, 7.4))
sketch7.addConstraint(Sketcher.Constraint("DistanceX", 4, 2, -1, 1, 117.39))
pocket3 = body.newObject("PartDesign::Pocket", "Pocket002")
pocket3.Profile = sketch7
pocket3.Length = 1.2
pocket3.Reversed = True

# Sketch on YZ plane
sketch8 = body.newObject("Sketcher::SketchObject", "Sketch007")
sketch8.AttachmentSupport = (doc.getObject("YZ_Plane"), [""])
sketch8.MapMode = "FlatFace"
sketch8.AttachmentOffset = App.Placement(Vector(0, 0, 233.9), App.Rotation())
add_polygon(sketch8, [(-123.4, 8.9), (-123.4, 7.4), (-117.4, 7.4), (-117.4, 8.9)])  # lines 0-3
add_polygon(sketch8, [(-69, 8.9), (-69, 7.4), (-63, 7.4), (-63, 8.9)])  # lines 4-7
sketch8.addConstraint(Sketcher.Constraint("Vertical", 0))
sketch8.addConstraint(Sketcher.Constraint("Horizontal", 1))
sketch8.addConstraint(Sketcher.Constraint("Vertical", 2))
sketch8.addConstraint(Sketcher.Constraint("Horizontal", 3))
sketch8.addConstraint(Sketcher.Constraint("Vertical", 4))
sketch8.addConstraint(Sketcher.Constraint("Horizontal", 5))
sketch8.addConstraint(Sketcher.Constraint("Vertical", 6))
sketch8.addConstraint(Sketcher.Constraint("Horizontal", 7))
sketch8.addConstraint(Sketcher.Constraint("Horizontal", 1, 2, 4, 2))
sketch8.addConstraint(Sketcher.Constraint("Horizontal", 3, 2, 6, 2))
sketch8.addConstraint(Sketcher.Constraint("Equal", 3, 5))
sketch8.addConstraint(Sketcher.Constraint("DistanceX", 1, 1, 1, 2, 6.0))
sketch8.addConstraint(Sketcher.Constraint("DistanceY", 0, 2, 0, 1, 1.5))
sketch8.addConstraint(Sketcher.Constraint("DistanceY", -1, 1, 0, 2, 7.4))
sketch8.addConstraint(Sketcher.Constraint("DistanceX", 0, 2, -1, 1, 123.39))
sketch8.addConstraint(Sketcher.Constraint("DistanceX", 4, 2, -1, 1, 68.97))
pocket4 = body.newObject("PartDesign::Pocket", "Pocket003")
pocket4.Profile = sketch8
pocket4.Length = 1.2

# Sketch on XY plane
sketch9 = body.newObject("Sketcher::SketchObject", "Sketch008")
sketch9.AttachmentSupport = (doc.getObject("XY_Plane"), [""])
sketch9.MapMode = "FlatFace"
sketch9.AttachmentOffset = App.Placement(Vector(0, 0, 11.4), App.Rotation())
sketch9.addGeometry(Part.Circle(Vector(124.4, -111.7, 0), Vector(0, 0, 1), 1.1), False)
sketch9.addGeometry(Part.Circle(Vector(124.4, -132.7, 0), Vector(0, 0, 1), 1.1), False)
sketch9.addConstraint(Sketcher.Constraint("Equal", 0, 1))
sketch9.addConstraint(Sketcher.Constraint("Vertical", 0, 3, 1, 3))
sketch9.addConstraint(Sketcher.Constraint("Diameter", 0, 2.2))
sketch9.addConstraint(Sketcher.Constraint("DistanceY", 1, 3, 0, 3, 21.0))
sketch9.addConstraint(Sketcher.Constraint("DistanceX", -1, 1, 0, 3, 124.44))
sketch9.addConstraint(Sketcher.Constraint("DistanceY", 0, 3, -1, 1, 111.69))
pocket5 = body.newObject("PartDesign::Pocket", "Pocket004")
pocket5.Profile = sketch9
pocket5.Length = 12

# Sketch on XY plane
sketch10 = body.newObject("Sketcher::SketchObject", "Sketch009")
sketch10.AttachmentSupport = (doc.getObject("XY_Plane"), [""])
sketch10.MapMode = "FlatFace"
sketch10.addGeometry(Part.Circle(Vector(124.4, -132.7, 0), Vector(0, 0, 1), 2), False)
sketch10.addGeometry(Part.Circle(Vector(124.4, -111.7, 0), Vector(0, 0, 1), 2), False)
sketch10.addConstraint(Sketcher.Constraint("Equal", 0, 1))
sketch10.addConstraint(Sketcher.Constraint("Vertical", 0, 3, 1, 3))
sketch10.addConstraint(Sketcher.Constraint("Diameter", 0, 4.0))
sketch10.addConstraint(Sketcher.Constraint("DistanceY", 0, 3, 1, 3, 21.0))
sketch10.addConstraint(Sketcher.Constraint("DistanceX", -1, 1, 0, 3, 124.44))
sketch10.addConstraint(Sketcher.Constraint("DistanceY", 0, 3, -1, 1, 132.69))
pocket6 = body.newObject("PartDesign::Pocket", "Pocket005")
pocket6.Profile = sketch10
pocket6.Length = 5
pocket6.Reversed = True

# Sketch on XZ plane
sketch11 = body.newObject("Sketcher::SketchObject", "Sketch010")
sketch11.AttachmentSupport = (doc.getObject("XZ_Plane"), [""])
sketch11.MapMode = "FlatFace"
sketch11.AttachmentOffset = App.Placement(Vector(0, 0, 56.97), App.Rotation())
add_polygon(sketch11, [(233.9, 11.4), (233.9, 7.4), (231.4, 7.4), (231.4, 11.4)])  # lines 0-3
sketch11.addConstraint(Sketcher.Constraint("Vertical", 0))
sketch11.addConstraint(Sketcher.Constraint("Horizontal", 1))
sketch11.addConstraint(Sketcher.Constraint("Vertical", 2))
sketch11.addConstraint(Sketcher.Constraint("Horizontal", 3))
sketch11.addConstraint(Sketcher.Constraint("DistanceY", 0, 2, 0, 1, 4.0))
sketch11.addConstraint(Sketcher.Constraint("DistanceX", 1, 2, 1, 1, 2.45))
sketch11.addConstraint(Sketcher.Constraint("DistanceX", -1, 1, 0, 2, 233.9))
sketch11.addConstraint(Sketcher.Constraint("DistanceY", -1, 1, 0, 2, 7.4))
pocket7 = body.newObject("PartDesign::Pocket", "Pocket006")
pocket7.Profile = sketch11
pocket7.Length = 4
pocket7.Reversed = True

# Sketch on XZ plane
sketch12 = body.newObject("Sketcher::SketchObject", "Sketch011")
sketch12.AttachmentSupport = (doc.getObject("XZ_Plane"), [""])
sketch12.MapMode = "FlatFace"
sketch12.AttachmentOffset = App.Placement(Vector(0, 0, 48.1), App.Rotation())
add_polygon(sketch12, [(233.9, 7.4), (233.9, 2), (231.4, 2), (231.4, 7.4)])  # lines 0-3
sketch12.addConstraint(Sketcher.Constraint("Vertical", 0))
sketch12.addConstraint(Sketcher.Constraint("Horizontal", 1))
sketch12.addConstraint(Sketcher.Constraint("Vertical", 2))
sketch12.addConstraint(Sketcher.Constraint("Horizontal", 3))
sketch12.addConstraint(Sketcher.Constraint("DistanceY", 0, 2, 0, 1, 5.4))
sketch12.addConstraint(Sketcher.Constraint("DistanceY", -1, 1, 0, 2, 2.0))
sketch12.addConstraint(Sketcher.Constraint("DistanceX", 1, 2, 1, 1, 2.45))
sketch12.addConstraint(Sketcher.Constraint("DistanceX", -1, 1, 0, 2, 233.9))
pocket8 = body.newObject("PartDesign::Pocket", "Pocket007")
pocket8.Profile = sketch12
pocket8.Length = 12.87
pocket8.Reversed = True

doc.recompute()
